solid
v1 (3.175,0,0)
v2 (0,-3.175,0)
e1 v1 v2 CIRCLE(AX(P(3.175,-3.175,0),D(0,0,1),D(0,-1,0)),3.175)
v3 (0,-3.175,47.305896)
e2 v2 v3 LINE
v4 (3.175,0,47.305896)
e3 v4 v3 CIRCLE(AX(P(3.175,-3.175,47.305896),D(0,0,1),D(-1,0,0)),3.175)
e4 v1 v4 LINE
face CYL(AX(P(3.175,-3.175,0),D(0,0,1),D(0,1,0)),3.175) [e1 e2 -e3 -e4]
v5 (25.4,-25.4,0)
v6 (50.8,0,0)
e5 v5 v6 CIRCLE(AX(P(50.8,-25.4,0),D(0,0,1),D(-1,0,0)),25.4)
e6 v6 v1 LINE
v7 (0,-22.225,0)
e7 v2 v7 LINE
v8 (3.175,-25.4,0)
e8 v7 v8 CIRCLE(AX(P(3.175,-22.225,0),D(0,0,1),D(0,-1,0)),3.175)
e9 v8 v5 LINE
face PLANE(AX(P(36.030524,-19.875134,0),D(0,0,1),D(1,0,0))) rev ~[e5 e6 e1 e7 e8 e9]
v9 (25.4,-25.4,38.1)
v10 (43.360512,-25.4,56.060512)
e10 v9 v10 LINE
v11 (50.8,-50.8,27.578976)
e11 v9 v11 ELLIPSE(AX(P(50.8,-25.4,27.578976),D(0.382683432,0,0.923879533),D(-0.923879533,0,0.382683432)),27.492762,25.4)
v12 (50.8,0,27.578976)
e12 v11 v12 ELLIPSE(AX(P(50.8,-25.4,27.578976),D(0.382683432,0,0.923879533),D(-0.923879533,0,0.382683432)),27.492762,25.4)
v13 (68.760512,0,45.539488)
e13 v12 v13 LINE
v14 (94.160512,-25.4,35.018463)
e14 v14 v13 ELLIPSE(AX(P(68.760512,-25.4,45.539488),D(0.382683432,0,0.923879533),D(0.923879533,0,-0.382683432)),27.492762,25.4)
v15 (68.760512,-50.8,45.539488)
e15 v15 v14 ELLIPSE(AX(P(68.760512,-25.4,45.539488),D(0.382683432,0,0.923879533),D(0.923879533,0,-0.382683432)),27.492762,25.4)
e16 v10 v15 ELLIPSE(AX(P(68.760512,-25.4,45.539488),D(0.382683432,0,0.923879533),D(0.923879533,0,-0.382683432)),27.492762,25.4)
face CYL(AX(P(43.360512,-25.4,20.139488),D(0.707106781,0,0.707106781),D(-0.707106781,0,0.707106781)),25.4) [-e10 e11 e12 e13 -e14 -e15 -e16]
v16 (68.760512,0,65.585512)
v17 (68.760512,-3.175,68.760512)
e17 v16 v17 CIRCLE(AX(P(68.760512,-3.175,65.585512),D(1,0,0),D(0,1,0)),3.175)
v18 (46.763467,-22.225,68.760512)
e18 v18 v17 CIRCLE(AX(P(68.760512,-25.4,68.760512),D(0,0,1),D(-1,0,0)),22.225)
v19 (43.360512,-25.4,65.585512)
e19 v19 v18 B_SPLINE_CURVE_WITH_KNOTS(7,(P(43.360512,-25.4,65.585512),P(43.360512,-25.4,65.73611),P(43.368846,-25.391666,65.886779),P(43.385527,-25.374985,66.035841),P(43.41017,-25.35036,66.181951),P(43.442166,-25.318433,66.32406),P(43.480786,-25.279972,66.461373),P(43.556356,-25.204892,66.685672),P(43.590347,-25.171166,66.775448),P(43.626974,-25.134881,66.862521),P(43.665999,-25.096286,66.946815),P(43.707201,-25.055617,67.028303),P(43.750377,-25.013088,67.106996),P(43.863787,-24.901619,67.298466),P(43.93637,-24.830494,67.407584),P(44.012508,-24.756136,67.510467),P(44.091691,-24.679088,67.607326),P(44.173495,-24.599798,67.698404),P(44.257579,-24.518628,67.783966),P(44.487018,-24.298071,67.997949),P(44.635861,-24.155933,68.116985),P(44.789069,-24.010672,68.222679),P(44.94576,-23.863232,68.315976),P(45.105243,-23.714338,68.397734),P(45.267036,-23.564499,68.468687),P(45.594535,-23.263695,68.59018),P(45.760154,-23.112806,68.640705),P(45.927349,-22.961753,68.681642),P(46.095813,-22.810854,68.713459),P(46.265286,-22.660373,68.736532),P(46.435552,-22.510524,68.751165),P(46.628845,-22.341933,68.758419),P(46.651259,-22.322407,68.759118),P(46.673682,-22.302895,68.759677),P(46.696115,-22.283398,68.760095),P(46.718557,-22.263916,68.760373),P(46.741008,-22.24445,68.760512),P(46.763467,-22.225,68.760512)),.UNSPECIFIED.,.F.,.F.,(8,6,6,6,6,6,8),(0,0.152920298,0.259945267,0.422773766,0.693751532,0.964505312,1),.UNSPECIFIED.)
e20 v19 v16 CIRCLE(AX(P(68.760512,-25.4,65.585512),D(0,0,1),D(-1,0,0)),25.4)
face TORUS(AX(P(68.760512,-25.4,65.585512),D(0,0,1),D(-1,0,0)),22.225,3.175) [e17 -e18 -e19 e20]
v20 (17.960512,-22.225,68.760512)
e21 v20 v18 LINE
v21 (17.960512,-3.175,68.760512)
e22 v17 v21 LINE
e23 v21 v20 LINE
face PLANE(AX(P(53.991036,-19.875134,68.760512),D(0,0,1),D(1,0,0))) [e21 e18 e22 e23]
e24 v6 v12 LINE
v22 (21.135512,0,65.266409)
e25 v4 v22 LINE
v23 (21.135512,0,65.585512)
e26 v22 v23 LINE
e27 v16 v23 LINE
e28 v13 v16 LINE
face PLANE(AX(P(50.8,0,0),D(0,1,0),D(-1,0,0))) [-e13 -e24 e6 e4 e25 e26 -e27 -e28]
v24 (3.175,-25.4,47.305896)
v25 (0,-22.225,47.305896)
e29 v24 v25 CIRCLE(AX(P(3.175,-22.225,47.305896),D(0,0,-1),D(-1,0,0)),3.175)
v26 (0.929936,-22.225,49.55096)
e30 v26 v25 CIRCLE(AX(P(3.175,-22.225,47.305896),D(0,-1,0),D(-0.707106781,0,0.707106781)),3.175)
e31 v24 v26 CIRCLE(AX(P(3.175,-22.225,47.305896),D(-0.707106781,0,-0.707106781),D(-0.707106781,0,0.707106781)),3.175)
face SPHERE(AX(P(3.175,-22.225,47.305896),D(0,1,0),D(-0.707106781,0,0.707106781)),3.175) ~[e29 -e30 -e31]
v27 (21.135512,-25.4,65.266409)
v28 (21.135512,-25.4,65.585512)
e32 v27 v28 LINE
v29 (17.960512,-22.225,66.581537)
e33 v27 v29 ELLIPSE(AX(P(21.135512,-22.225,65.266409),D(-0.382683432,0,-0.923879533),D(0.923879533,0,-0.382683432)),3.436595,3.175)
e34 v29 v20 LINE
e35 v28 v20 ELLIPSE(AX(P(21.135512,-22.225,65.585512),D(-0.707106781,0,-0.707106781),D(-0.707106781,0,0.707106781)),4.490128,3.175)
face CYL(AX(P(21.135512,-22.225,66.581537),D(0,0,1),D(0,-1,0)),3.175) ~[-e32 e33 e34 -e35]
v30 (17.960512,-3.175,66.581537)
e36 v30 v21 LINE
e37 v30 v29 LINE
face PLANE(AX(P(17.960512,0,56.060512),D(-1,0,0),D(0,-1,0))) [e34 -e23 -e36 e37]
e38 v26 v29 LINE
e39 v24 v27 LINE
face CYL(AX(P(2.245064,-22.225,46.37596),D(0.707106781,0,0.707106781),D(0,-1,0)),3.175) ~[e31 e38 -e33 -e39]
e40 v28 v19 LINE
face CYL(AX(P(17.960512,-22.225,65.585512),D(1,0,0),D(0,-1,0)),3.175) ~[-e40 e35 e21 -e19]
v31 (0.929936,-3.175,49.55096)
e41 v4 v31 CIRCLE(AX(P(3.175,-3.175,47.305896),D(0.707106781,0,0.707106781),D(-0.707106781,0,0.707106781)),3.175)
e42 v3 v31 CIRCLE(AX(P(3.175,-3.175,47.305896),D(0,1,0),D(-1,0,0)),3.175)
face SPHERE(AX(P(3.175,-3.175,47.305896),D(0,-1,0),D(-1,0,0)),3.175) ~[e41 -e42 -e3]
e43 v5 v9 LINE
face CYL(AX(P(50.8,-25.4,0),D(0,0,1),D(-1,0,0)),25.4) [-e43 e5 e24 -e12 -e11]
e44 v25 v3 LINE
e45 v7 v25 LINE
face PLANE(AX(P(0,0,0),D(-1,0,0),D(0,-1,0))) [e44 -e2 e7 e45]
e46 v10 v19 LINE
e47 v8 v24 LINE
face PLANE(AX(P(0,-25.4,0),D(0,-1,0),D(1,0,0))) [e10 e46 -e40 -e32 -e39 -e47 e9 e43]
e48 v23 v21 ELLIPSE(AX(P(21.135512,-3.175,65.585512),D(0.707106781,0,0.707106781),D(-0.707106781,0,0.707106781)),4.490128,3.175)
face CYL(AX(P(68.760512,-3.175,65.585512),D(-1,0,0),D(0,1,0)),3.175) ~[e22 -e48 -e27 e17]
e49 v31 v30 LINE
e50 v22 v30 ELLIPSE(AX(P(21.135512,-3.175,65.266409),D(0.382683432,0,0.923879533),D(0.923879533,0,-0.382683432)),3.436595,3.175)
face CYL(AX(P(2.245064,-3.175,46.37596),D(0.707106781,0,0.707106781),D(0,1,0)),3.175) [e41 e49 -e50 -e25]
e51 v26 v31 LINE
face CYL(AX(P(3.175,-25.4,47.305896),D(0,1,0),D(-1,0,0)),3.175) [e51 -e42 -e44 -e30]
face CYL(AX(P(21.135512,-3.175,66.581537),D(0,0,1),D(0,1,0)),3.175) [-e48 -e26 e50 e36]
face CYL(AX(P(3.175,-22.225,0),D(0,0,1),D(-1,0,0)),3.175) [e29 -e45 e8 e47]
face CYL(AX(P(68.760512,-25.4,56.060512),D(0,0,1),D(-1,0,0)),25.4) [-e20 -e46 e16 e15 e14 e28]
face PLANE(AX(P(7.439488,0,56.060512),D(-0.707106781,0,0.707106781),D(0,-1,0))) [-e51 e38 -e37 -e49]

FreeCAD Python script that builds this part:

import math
import FreeCAD as App
import Part
import Sketcher
from FreeCAD import Vector
Q = App.Units.Quantity


def edges_at(feature, points):
    """Names of the edges that pass closest to the given points."""
    edges = feature.Shape.Edges
    near = lambda p: min(range(len(edges)), key=lambda i: edges[i].distToShape(Part.Vertex(*p))[0])
    return sorted({f"Edge{near(p) + 1}" for p in points})

doc = App.newDocument("Part")
body = doc.addObject("PartDesign::Body", "Body")

sketch1 = body.newObject("Sketcher::SketchObject", "Sketch")
sketch1.AttachmentSupport = (doc.getObject("XY_Plane"), [""])
sketch1.MapMode = "FlatFace"
sketch1.addGeometry([
    Part.LineSegment(Vector(51, 0, 0), Vector(0, 0, 0)),
    Part.LineSegment(Vector(0, 0, 0), Vector(0, -25, 0)),
    Part.LineSegment(Vector(0, -25, 0), Vector(25, -25, 0)),
    Part.ArcOfCircle(Part.Circle(Vector(51, -25, 0), Vector(0, 0, 1), 25), math.radians(180), math.radians(450)),
], False)
sketch1.addConstraint([
    Sketcher.Constraint("Coincident", 0, 2, 1, 1),
    Sketcher.Constraint("Coincident", 1, 2, 2, 1),
    Sketcher.Constraint("Coincident", 2, 2, 3, 1),
    Sketcher.Constraint("Tangent", 3, 2, 0, 1),
    Sketcher.Constraint("Horizontal", 0),
    Sketcher.Constraint("Vertical", 1),
    Sketcher.Constraint("Horizontal", 2),
    Sketcher.Constraint("Coincident", 0, 2, -1, 1),
    Sketcher.Constraint("Horizontal", 3, 3, 1, 2),
    Sketcher.Constraint("Equal", 2, 1),
    Sketcher.Constraint("Radius", 3, Q("1 in")),
])

sketch2 = body.newObject("Sketcher::SketchObject", "Sketch001")
sketch2.AttachmentSupport = (doc.getObject("XZ_Plane"), [""])
sketch2.MapMode = "FlatFace"
sketch2.addGeometry([
    Part.LineSegment(Vector(25, 0, 0), Vector(25, 38, 0)),
    Part.LineSegment(Vector(25, 38, 0), Vector(43, 56, 0)),
    Part.LineSegment(Vector(43, 56, 0), Vector(43, 69, 0)),
], False)
sketch2.addConstraint([
    Sketcher.Constraint("Coincident", 0, 2, 1, 1),
    Sketcher.Constraint("Coincident", 1, 2, 2, 1),
    Sketcher.Constraint("Vertical", 0),
    Sketcher.Constraint("Vertical", 2),
    Sketcher.Constraint("PointOnObject", 0, 1, -1),
    Sketcher.Constraint("Distance", 1, Q("1 in")),
    Sketcher.Constraint("DistanceY", 0, 1, 0, 2, Q("1.5 in")),
    Sketcher.Constraint("DistanceY", 2, 1, 2, 2, Q("0.5 in")),
    Sketcher.Constraint("DistanceX", -1, 1, 0, 1, Q("1 in")),
    Sketcher.Constraint("Angle", 1, Q("45 deg")),
])
doc.recompute()

additivepipe = body.newObject("PartDesign::AdditivePipe", "AdditivePipe")
additivepipe.Profile = sketch1
additivepipe.Spine = (sketch2, ["Edge1", "Edge2", "Edge3"])
additivepipe.Transition = "Right corner"
doc.recompute()

fillet = body.newObject("PartDesign::Fillet", "Fillet")
fillet.Base = (additivepipe, edges_at(additivepipe, [
    (8.98, -25.4, 57.601),
    (0, -25.4, 24.311),
    (0, -12.7, 48.621),
    (0, 0, 24.311),
    (8.98, 0, 57.601),
    (17.961, -25.4, 67.671),
    (30.661, -25.4, 68.761),
    (17.961, 0, 67.671),
    (43.361, 0, 68.761),
]))
fillet.Radius = Q("0.125 in")

doc.recompute()
